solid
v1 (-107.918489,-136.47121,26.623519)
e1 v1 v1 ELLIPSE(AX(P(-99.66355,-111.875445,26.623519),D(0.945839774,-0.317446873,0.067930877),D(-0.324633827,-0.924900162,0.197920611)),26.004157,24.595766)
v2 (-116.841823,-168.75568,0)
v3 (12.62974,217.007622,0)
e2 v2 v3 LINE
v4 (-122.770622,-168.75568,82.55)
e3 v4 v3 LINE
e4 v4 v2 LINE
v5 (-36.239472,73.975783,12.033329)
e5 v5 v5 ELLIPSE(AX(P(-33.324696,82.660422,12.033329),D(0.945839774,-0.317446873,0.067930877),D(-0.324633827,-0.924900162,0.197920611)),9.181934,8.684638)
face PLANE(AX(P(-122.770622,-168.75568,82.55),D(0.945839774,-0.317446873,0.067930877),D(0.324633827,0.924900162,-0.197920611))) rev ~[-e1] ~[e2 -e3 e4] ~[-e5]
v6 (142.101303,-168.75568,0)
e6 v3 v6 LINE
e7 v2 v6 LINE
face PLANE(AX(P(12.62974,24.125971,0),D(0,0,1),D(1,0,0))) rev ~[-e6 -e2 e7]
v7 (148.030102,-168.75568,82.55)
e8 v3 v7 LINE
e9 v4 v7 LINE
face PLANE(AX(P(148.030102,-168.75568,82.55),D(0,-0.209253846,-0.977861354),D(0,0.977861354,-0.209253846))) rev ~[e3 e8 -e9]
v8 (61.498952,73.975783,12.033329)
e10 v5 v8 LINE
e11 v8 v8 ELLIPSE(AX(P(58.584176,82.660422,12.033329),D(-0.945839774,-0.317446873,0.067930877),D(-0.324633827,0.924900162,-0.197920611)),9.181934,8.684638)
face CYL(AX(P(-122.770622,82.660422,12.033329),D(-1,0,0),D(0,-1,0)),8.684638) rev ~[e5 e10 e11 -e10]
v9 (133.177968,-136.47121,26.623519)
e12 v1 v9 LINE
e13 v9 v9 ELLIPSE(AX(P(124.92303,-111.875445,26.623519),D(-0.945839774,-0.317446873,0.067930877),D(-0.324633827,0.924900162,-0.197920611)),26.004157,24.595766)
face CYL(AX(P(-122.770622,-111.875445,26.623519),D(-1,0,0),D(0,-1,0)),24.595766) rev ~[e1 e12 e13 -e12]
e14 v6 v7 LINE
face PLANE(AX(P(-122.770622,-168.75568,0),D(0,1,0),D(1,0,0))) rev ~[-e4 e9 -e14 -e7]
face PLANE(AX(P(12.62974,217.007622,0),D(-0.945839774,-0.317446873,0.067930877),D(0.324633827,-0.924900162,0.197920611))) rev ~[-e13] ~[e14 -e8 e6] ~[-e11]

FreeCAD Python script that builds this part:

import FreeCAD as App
import Part
import Sketcher

V = App.Vector
Q = App.Units.Quantity


def add_polygon(sketch, points):
    """Adds a closed chain of lines whose ends are joined by coincident constraints."""
    first, n = sketch.GeometryCount, len(points)
    for a, b in zip(points, points[1:] + points[:1]):
        sketch.addGeometry(Part.LineSegment(App.Vector(*a, 0), App.Vector(*b, 0)), False)
    for i in range(n):
        sketch.addConstraint(Sketcher.Constraint("Coincident", first + i, 2, first + (i + 1) % n, 1))

doc = App.newDocument("Part")
body = doc.addObject("PartDesign::Body", "Body")

# Sketch on XY plane
sketch1 = doc.addObject("Sketcher::SketchObject", "Sketch")
body.addObject(sketch1)
sketch1.AttachmentSupport = (doc.XY_Plane, [""])
sketch1.MapMode = "FlatFace"
add_polygon(sketch1, [(-122.770622, 217.007622), (-122.770622, -168.75568), (148.030102, -168.75568), (148.030102, 217.007622)])  # lines 0-3
sketch1.addConstraint([
    Sketcher.Constraint("Vertical", 0),
    Sketcher.Constraint("Horizontal", 1),
    Sketcher.Constraint("Vertical", 2),
    Sketcher.Constraint("Horizontal", 3),
    Sketcher.Constraint("DistanceX", 1, 1, 1, 2, 270.800725),
    Sketcher.Constraint("DistanceY", 0, 2, 0, 1, 385.763302),
    Sketcher.Constraint("DistanceY", 0, 2, -1, 1, 168.75568),
    Sketcher.Constraint("DistanceX", 0, 2, -1, 1, 122.770622),
])
pad1 = doc.addObject("PartDesign::Pad", "Pad")
body.addObject(pad1)
pad1.Profile = sketch1
pad1.Length = Q("3.25 in")

# Sketch on YZ plane
sketch2 = doc.addObject("Sketcher::SketchObject", "Sketch001")
body.addObject(sketch2)
sketch2.AttachmentSupport = (doc.YZ_Plane, [""])
sketch2.MapMode = "FlatFace"
sketch2.AttachmentOffset = App.Placement(V(0, 0, 148.030102), App.Rotation())
add_polygon(sketch2, [(217.007622, 82.55), (-168.75568, 82.55), (217.007622, 0)])  # lines 0-2
sketch2.addConstraint([
    Sketcher.Constraint("Horizontal", 0),
    Sketcher.Constraint("Vertical", 2),
    Sketcher.Constraint("PointOnObject", 1, 2, -1),
    Sketcher.Constraint("DistanceY", 2, 1, 2, 2, Q("3.25 in")),
    Sketcher.Constraint("Distance", 1, 394.49693),
    Sketcher.Constraint("DistanceX", 0, 2, -1, 1, 168.75568),
])
pocket1 = doc.addObject("PartDesign::Pocket", "Pocket")
body.addObject(pocket1)
pocket1.Profile = sketch2
pocket1.Length = Q("20 in")

# Sketch on YZ plane
sketch3 = doc.addObject("Sketcher::SketchObject", "Sketch002")
body.addObject(sketch3)
sketch3.AttachmentSupport = (doc.YZ_Plane, [""])
sketch3.MapMode = "FlatFace"
sketch3.AttachmentOffset = App.Placement(V(0, 0, -122.770622), App.Rotation())
sketch3.addGeometry([
    Part.Circle(V(82.660422, 12.033329, 0), V(0, 0, 1), 8.684638),
    Part.Circle(V(-111.875445, 26.623519, 0), V(0, 0, 1), 24.595766),
], False)
sketch3.addConstraint([
    Sketcher.Constraint("Diameter", 1, 49.191532),
    Sketcher.Constraint("Diameter", 0, 17.369277),
    Sketcher.Constraint("DistanceX", -1, 1, 0, 3, 82.660422),
    Sketcher.Constraint("DistanceY", -1, 1, 0, 3, 12.033329),
    Sketcher.Constraint("DistanceY", -1, 1, 1, 3, 26.623519),
    Sketcher.Constraint("DistanceX", 1, 3, -1, 1, 111.875445),
])
pocket2 = doc.addObject("PartDesign::Pocket", "Pocket001")
body.addObject(pocket2)
pocket2.Profile = sketch3
pocket2.Length = Q("15 in")
pocket2.Reversed = True

# Sketch on an angled plane
sketch4 = doc.addObject("Sketcher::SketchObject", "Sketch003")
body.addObject(sketch4)
sketch4.Placement = App.Placement(V(0, 9.50215, 44.404371), App.Rotation(V(1, 0, 0), V(0, 0.977861354, -0.209253846), V(0, 0.209253846, 0.977861354), "ZXY"))
add_polygon(sketch4, [(148.030102, 212.203367), (12.62974, 212.203367), (148.030102, -182.293563)])  # lines 0-2
add_polygon(sketch4, [(-122.770622, -182.293563), (12.62974, 212.203367), (-122.770622, 212.203367)])  # lines 3-5
sketch4.addConstraint([
    Sketcher.Constraint("Horizontal", 0),
    Sketcher.Constraint("Vertical", 2),
    Sketcher.Constraint("Horizontal", 4),
    Sketcher.Constraint("Vertical", 5),
    Sketcher.Constraint("Coincident", 3, 2, 0, 2),
    Sketcher.Constraint("Horizontal", 1, 2, 5, 2),
    Sketcher.Constraint("Equal", 0, 4),
    Sketcher.Constraint("DistanceY", 2, 1, 2, 2, 394.49693),
    Sketcher.Constraint("DistanceX", 0, 2, 0, 1, 135.400362),
    Sketcher.Constraint("DistanceX", -1, 1, 0, 2, 12.62974),
    Sketcher.Constraint("DistanceY", -1, 1, 0, 2, 212.203367),
])
pocket3 = doc.addObject("PartDesign::Pocket", "Pocket002")
body.addObject(pocket3)
pocket3.Profile = sketch4
pocket3.Length = Q("40 in")

doc.recompute()
